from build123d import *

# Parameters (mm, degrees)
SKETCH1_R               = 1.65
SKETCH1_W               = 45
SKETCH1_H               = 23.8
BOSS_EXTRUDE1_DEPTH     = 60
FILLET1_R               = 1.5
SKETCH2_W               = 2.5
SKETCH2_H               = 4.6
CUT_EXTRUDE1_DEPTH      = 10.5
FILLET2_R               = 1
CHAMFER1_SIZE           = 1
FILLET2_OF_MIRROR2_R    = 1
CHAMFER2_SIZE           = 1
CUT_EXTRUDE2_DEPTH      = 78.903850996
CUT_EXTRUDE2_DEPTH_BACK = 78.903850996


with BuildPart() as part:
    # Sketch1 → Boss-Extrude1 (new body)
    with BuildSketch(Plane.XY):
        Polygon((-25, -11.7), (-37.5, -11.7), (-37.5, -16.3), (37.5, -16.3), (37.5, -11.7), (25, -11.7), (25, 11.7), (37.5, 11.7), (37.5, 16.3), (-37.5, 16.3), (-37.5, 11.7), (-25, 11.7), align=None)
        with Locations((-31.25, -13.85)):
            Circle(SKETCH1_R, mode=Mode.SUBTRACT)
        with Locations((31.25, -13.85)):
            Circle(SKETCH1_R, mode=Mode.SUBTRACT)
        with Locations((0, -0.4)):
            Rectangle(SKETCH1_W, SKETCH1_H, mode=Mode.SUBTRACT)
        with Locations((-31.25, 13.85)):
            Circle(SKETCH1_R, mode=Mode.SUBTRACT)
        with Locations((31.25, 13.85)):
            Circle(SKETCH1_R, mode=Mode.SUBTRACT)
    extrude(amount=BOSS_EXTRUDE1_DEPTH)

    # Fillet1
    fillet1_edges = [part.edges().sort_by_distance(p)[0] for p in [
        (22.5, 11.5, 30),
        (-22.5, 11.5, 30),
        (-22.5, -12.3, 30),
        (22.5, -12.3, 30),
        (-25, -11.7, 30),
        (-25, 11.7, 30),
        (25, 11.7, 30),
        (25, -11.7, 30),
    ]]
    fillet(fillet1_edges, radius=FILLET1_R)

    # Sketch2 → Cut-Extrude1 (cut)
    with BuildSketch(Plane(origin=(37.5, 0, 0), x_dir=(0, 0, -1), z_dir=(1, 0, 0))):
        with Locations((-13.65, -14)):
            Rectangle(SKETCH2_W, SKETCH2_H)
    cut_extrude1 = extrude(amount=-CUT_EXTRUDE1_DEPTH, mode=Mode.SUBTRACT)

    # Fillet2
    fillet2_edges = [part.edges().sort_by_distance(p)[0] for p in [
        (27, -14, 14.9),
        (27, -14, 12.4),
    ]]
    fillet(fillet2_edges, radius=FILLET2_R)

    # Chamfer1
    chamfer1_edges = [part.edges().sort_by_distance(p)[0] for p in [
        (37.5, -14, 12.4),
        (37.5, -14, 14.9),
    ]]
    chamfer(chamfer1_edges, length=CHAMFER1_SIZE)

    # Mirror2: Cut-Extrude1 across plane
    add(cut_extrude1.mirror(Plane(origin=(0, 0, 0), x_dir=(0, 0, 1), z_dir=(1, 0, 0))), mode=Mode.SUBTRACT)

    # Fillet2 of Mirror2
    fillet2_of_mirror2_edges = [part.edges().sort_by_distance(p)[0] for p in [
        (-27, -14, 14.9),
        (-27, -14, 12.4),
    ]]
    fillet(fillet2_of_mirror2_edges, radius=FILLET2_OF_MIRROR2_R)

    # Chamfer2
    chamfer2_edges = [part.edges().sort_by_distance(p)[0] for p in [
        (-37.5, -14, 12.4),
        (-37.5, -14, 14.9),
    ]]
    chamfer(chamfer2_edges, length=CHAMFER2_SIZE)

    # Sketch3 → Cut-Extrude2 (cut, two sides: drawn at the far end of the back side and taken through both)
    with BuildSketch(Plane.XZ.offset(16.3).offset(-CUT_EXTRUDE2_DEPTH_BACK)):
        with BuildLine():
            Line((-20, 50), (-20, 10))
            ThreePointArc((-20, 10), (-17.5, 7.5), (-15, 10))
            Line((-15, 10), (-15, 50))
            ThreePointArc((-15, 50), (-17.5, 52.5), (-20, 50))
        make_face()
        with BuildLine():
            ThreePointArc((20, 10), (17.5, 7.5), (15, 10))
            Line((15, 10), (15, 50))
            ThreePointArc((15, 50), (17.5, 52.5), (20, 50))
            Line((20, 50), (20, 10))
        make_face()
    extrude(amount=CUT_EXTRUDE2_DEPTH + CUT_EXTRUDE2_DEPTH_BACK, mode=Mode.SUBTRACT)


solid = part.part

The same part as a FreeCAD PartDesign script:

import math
import FreeCAD as App
import Part
import Sketcher

V = App.Vector


def edges_at(feature, points):
    """Names of the edges that pass closest to the given points."""
    edges = feature.Shape.Edges
    near = lambda p: min(range(len(edges)), key=lambda i: edges[i].distToShape(Part.Vertex(*p))[0])
    return sorted({f"Edge{near(p) + 1}" for p in points})


def add_polygon(sketch, points):
    """Adds a closed chain of lines whose ends are joined by coincident constraints."""
    first, n = sketch.GeometryCount, len(points)
    for a, b in zip(points, points[1:] + points[:1]):
        sketch.addGeometry(Part.LineSegment(App.Vector(*a, 0), App.Vector(*b, 0)), False)
    for i in range(n):
        sketch.addConstraint(Sketcher.Constraint("Coincident", first + i, 2, first + (i + 1) % n, 1))

doc = App.newDocument("Part")
body = doc.addObject("PartDesign::Body", "Body")

sketch1 = doc.addObject("Sketcher::SketchObject", "Sketch")
body.addObject(sketch1)
sketch1.AttachmentSupport = (doc.XY_Plane, [""])
sketch1.MapMode = "FlatFace"
add_polygon(sketch1, [(-25, -11.7), (-37.5, -11.7), (-37.5, -16.3), (37.5, -16.3), (37.5, -11.7), (25, -11.7), (25, 11.7), (37.5, 11.7), (37.5, 16.3), (-37.5, 16.3), (-37.5, 11.7), (-25, 11.7)])
sketch1.addGeometry(Part.Circle(V(-31.2, -13.8, 0), V(0, 0, 1), 1.6), False)
sketch1.addGeometry(Part.Circle(V(31.2, -13.8, 0), V(0, 0, 1), 1.6), False)
add_polygon(sketch1, [(22.5, -12.3), (-22.5, -12.3), (-22.5, 11.5), (22.5, 11.5)])
sketch1.addGeometry(Part.Circle(V(-31.2, 13.8, 0), V(0, 0, 1), 1.6), False)
sketch1.addGeometry(Part.Circle(V(31.2, 13.8, 0), V(0, 0, 1), 1.6), False)
sketch1.addConstraint(Sketcher.Constraint("Horizontal", 0))
sketch1.addConstraint(Sketcher.Constraint("Vertical", 1))
sketch1.addConstraint(Sketcher.Constraint("Horizontal", 2))
sketch1.addConstraint(Sketcher.Constraint("Vertical", 3))
sketch1.addConstraint(Sketcher.Constraint("Horizontal", 4))
sketch1.addConstraint(Sketcher.Constraint("Vertical", 5))
sketch1.addConstraint(Sketcher.Constraint("Horizontal", 6))
sketch1.addConstraint(Sketcher.Constraint("Vertical", 7))
sketch1.addConstraint(Sketcher.Constraint("Horizontal", 8))
sketch1.addConstraint(Sketcher.Constraint("Vertical", 9))
sketch1.addConstraint(Sketcher.Constraint("Horizontal", 10))
sketch1.addConstraint(Sketcher.Constraint("Vertical", 11))
sketch1.addConstraint(Sketcher.Constraint("Horizontal", 14))
sketch1.addConstraint(Sketcher.Constraint("Vertical", 15))
sketch1.addConstraint(Sketcher.Constraint("Horizontal", 16))
sketch1.addConstraint(Sketcher.Constraint("Vertical", 17))
sketch1.addConstraint(Sketcher.Constraint("Equal", 12, 13))
sketch1.addConstraint(Sketcher.Constraint("Equal", 13, 18))
sketch1.addConstraint(Sketcher.Constraint("Equal", 18, 19))
sketch1.addConstraint(Sketcher.Constraint("Symmetric", 13, 3, 18, 3, -1, 1))
sketch1.addConstraint(Sketcher.Constraint("Symmetric", 12, 3, 19, 3, -1, 1))
sketch1.addConstraint(Sketcher.Constraint("Symmetric", 0, 2, 6, 2, -1, 1))
sketch1.addConstraint(Sketcher.Constraint("Symmetric", 2, 2, 8, 2, -1, 1))
sketch1.addConstraint(Sketcher.Constraint("Symmetric", 4, 2, 10, 2, -1, 1))
sketch1.addConstraint(Sketcher.Constraint("Symmetric", 12, 3, 13, 3, -2))
sketch1.addConstraint(Sketcher.Constraint("Symmetric", 0, 2, 3, 2, -2))
sketch1.addConstraint(Sketcher.Constraint("Diameter", 12, 3.3))
sketch1.addConstraint(Sketcher.Constraint("DistanceX", 2, 1, 2, 2, 75.0))
sketch1.addConstraint(Sketcher.Constraint("DistanceX", 14, 2, 14, 1, 45.0))
sketch1.addConstraint(Sketcher.Constraint("DistanceX", 0, 2, 0, 1, 12.5))
sketch1.addConstraint(Sketcher.Constraint("DistanceY", 1, 2, 1, 1, 4.6))
sketch1.addConstraint(Sketcher.Constraint("DistanceY", 5, 1, 5, 2, 23.4))
sketch1.addConstraint(Sketcher.Constraint("DistanceY", 15, 1, 15, 2, 23.8))
sketch1.addConstraint(Sketcher.Constraint("DistanceX", 0, 2, 14, 2, 15.0))
sketch1.addConstraint(Sketcher.Constraint("DistanceY", 1, 2, 14, 2, 4.0))
sketch1.addConstraint(Sketcher.Constraint("DistanceX", 12, 3, 13, 3, 62.5))
sketch1.addConstraint(Sketcher.Constraint("DistanceY", 12, 3, 18, 3, 27.7))
pad1 = doc.addObject("PartDesign::Pad", "Pad")
body.addObject(pad1)
pad1.Profile = sketch1
pad1.Length = 60
doc.recompute()

fillet = doc.addObject("PartDesign::Fillet", "Fillet")
body.addObject(fillet)
fillet.Base = (pad1, edges_at(pad1, [
    (22.5, 11.5, 30),
    (-22.5, 11.5, 30),
    (-22.5, -12.3, 30),
    (22.5, -12.3, 30),
    (-25, -11.7, 30),
    (-25, 11.7, 30),
    (25, 11.7, 30),
    (25, -11.7, 30),
]))
fillet.Radius = 1.5

sketch2 = doc.addObject("Sketcher::SketchObject", "Sketch001")
body.addObject(sketch2)
sketch2.AttachmentSupport = (doc.YZ_Plane, [""])
sketch2.MapMode = "FlatFace"
sketch2.AttachmentOffset = App.Placement(V(0, 0, 37.5), App.Rotation())
add_polygon(sketch2, [(-11.7, 14.9), (-16.3, 14.9), (-16.3, 12.4), (-11.7, 12.4)])
sketch2.addConstraint(Sketcher.Constraint("Horizontal", 0))
sketch2.addConstraint(Sketcher.Constraint("Vertical", 1))
sketch2.addConstraint(Sketcher.Constraint("Horizontal", 2))
sketch2.addConstraint(Sketcher.Constraint("Vertical", 3))
sketch2.addConstraint(Sketcher.Constraint("DistanceX", 0, 2, 0, 1, 4.6))
sketch2.addConstraint(Sketcher.Constraint("DistanceY", 1, 2, 1, 1, 2.5))
sketch2.addConstraint(Sketcher.Constraint("DistanceX", 0, 2, -1, 1, 16.3))
sketch2.addConstraint(Sketcher.Constraint("DistanceY", -1, 1, 0, 2, 14.9))
pocket1 = doc.addObject("PartDesign::Pocket", "Pocket")
body.addObject(pocket1)
pocket1.Profile = sketch2
pocket1.Length = 10.5
doc.recompute()

fillet2 = doc.addObject("PartDesign::Fillet", "Fillet001")
body.addObject(fillet2)
fillet2.Base = (pocket1, edges_at(pocket1, [(27, -14, 14.9), (27, -14, 12.4)]))
fillet2.Radius = 1
doc.recompute()

chamfer = doc.addObject("PartDesign::Chamfer", "Chamfer")
body.addObject(chamfer)
chamfer.Base = (fillet2, edges_at(fillet2, [(37.5, -14, 12.4), (37.5, -14, 14.9)]))
chamfer.Size = 1
doc.recompute()

mirrored = doc.addObject("PartDesign::Mirrored", "Mirrored")
body.addObject(mirrored)
mirrored.Originals = [pocket1]
mirrored.MirrorPlane = (doc.YZ_Plane, [""])
body.Tip = mirrored
doc.recompute()

fillet3 = doc.addObject("PartDesign::Fillet", "Fillet002")
body.addObject(fillet3)
fillet3.Base = (mirrored, edges_at(mirrored, [(-27, -14, 14.9), (-27, -14, 12.4)]))
fillet3.Radius = 1
doc.recompute()

chamfer2 = doc.addObject("PartDesign::Chamfer", "Chamfer001")
body.addObject(chamfer2)
chamfer2.Base = (fillet3, edges_at(fillet3, [(-37.5, -14, 12.4), (-37.5, -14, 14.9)]))
chamfer2.Size = 1

sketch3 = doc.addObject("Sketcher::SketchObject", "Sketch002")
body.addObject(sketch3)
sketch3.AttachmentSupport = (doc.XZ_Plane, [""])
sketch3.MapMode = "FlatFace"
sketch3.AttachmentOffset = App.Placement(V(0, 0, 16.3), App.Rotation())
sketch3.addGeometry(Part.LineSegment(V(-20, 50, 0), V(-20, 10, 0)), False)
sketch3.addGeometry(Part.ArcOfCircle(Part.Circle(V(-17.5, 10, 0), V(0, 0, 1), 2.5), math.radians(180), math.radians(360)), False)
sketch3.addGeometry(Part.LineSegment(V(-15, 10, 0), V(-15, 50, 0)), False)
sketch3.addGeometry(Part.ArcOfCircle(Part.Circle(V(-17.5, 50, 0), V(0, 0, 1), 2.5), math.radians(0), math.radians(180)), False)
sketch3.addGeometry(Part.ArcOfCircle(Part.Circle(V(17.5, 10, 0), V(0, 0, 1), 2.5), math.radians(180), math.radians(360)), False)
sketch3.addGeometry(Part.LineSegment(V(20, 10, 0), V(20, 50, 0)), False)
sketch3.addGeometry(Part.ArcOfCircle(Part.Circle(V(17.5, 50, 0), V(0, 0, 1), 2.5), math.radians(0), math.radians(180)), False)
sketch3.addGeometry(Part.LineSegment(V(15, 50, 0), V(15, 10, 0)), False)
sketch3.addConstraint(Sketcher.Constraint("Tangent", 0, 2, 1, 1))
sketch3.addConstraint(Sketcher.Constraint("Tangent", 1, 2, 2, 1))
sketch3.addConstraint(Sketcher.Constraint("Tangent", 2, 2, 3, 1))
sketch3.addConstraint(Sketcher.Constraint("Tangent", 3, 2, 0, 1))
sketch3.addConstraint(Sketcher.Constraint("Tangent", 4, 2, 5, 1))
sketch3.addConstraint(Sketcher.Constraint("Tangent", 5, 2, 6, 1))
sketch3.addConstraint(Sketcher.Constraint("Tangent", 6, 2, 7, 1))
sketch3.addConstraint(Sketcher.Constraint("Tangent", 7, 2, 4, 1))
sketch3.addConstraint(Sketcher.Constraint("Vertical", 0))
sketch3.addConstraint(Sketcher.Constraint("Vertical", 2))
sketch3.addConstraint(Sketcher.Constraint("Vertical", 5))
sketch3.addConstraint(Sketcher.Constraint("Vertical", 7))
sketch3.addConstraint(Sketcher.Constraint("Equal", 3, 4))
sketch3.addConstraint(Sketcher.Constraint("Symmetric", 1, 3, 4, 3, -2))
sketch3.addConstraint(Sketcher.Constraint("Horizontal", 3, 3, 6, 3))
sketch3.addConstraint(Sketcher.Constraint("Radius", 1, 2.5))
sketch3.addConstraint(Sketcher.Constraint("DistanceY", 0, 2, 0, 1, 40.0))
sketch3.addConstraint(Sketcher.Constraint("DistanceY", -1, 1, 1, 3, 10.0))
sketch3.addConstraint(Sketcher.Constraint("DistanceX", 0, 2, -1, 1, 20.0))
pocket2 = doc.addObject("PartDesign::Pocket", "Pocket001")
body.addObject(pocket2)
pocket2.Profile = sketch3
pocket2.Type = "ThroughAll"
pocket2.Midplane = True

doc.recompute()
